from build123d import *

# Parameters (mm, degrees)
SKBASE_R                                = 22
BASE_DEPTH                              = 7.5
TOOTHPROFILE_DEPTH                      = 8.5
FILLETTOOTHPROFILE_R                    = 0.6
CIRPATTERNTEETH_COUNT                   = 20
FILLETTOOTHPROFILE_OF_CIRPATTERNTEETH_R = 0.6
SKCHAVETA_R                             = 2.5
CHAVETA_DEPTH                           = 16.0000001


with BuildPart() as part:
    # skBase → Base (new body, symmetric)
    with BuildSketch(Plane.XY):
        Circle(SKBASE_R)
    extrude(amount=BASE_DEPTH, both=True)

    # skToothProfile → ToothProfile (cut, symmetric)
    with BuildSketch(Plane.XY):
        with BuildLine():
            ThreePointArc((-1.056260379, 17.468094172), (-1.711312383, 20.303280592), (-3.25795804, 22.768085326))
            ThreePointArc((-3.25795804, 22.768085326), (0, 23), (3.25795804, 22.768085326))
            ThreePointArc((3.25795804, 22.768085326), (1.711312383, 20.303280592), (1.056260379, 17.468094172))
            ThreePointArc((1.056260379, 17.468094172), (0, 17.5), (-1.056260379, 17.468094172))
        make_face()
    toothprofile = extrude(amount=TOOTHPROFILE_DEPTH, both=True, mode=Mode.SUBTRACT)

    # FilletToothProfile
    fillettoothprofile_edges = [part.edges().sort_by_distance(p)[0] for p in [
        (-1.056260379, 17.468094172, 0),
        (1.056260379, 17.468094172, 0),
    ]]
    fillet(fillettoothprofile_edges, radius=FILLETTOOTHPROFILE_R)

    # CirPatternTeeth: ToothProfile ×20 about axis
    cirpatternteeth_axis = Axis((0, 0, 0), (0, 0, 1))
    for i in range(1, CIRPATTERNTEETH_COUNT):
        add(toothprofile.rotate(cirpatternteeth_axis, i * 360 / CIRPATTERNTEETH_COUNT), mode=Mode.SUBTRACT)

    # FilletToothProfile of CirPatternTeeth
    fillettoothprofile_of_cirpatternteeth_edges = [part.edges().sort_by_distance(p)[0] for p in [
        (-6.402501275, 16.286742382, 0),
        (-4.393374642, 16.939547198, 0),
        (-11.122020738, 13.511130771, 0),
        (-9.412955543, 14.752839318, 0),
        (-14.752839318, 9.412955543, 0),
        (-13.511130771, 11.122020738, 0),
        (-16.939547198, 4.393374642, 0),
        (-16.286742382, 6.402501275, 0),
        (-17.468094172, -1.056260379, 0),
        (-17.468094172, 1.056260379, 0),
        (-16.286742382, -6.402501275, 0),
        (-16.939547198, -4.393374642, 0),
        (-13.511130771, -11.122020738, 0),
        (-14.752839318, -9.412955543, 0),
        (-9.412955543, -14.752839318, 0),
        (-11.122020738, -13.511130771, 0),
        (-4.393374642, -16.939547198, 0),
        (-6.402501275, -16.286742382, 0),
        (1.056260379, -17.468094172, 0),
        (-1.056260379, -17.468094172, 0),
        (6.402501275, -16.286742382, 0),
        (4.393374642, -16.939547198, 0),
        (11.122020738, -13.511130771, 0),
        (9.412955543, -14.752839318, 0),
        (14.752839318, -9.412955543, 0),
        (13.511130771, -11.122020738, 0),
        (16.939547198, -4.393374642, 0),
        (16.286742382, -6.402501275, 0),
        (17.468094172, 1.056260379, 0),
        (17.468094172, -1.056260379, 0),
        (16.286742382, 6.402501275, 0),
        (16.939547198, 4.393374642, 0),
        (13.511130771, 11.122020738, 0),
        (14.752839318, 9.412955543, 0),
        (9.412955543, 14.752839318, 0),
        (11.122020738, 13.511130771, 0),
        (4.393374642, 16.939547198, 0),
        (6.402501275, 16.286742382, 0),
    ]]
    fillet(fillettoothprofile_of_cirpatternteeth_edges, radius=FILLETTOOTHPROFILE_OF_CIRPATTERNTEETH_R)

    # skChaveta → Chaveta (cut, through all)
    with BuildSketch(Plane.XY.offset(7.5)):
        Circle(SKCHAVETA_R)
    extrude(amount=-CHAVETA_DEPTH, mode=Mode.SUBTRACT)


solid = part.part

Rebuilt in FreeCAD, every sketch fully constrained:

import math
import FreeCAD as App
import Part
import Sketcher
Q = App.Units.Quantity


def edges_at(feature, points):
    """Names of the edges that pass closest to the given points."""
    edges = feature.Shape.Edges
    near = lambda p: min(range(len(edges)), key=lambda i: edges[i].distToShape(Part.Vertex(*p))[0])
    return sorted({f"Edge{near(p) + 1}" for p in points})

doc = App.newDocument("Part")
body = doc.addObject("PartDesign::Body", "Body")

sketch1 = body.newObject("Sketcher::SketchObject", "Sketch")
sketch1.AttachmentSupport = (doc.getObject("XY_Plane"), [""])
sketch1.MapMode = "FlatFace"
sketch1.addGeometry(Part.Circle(App.Vector(0, 0, 0), App.Vector(0, 0, 1), 22), False)
sketch1.addConstraint([
    Sketcher.Constraint("Coincident", 0, 3, -1, 1),
    Sketcher.Constraint("Diameter", 0, Q("44 mm")),
])
pad1 = body.newObject("PartDesign::Pad", "Pad")
pad1.Profile = sketch1
pad1.Length = 15
pad1.Midplane = True

sketch2 = body.newObject("Sketcher::SketchObject", "Sketch001")
sketch2.AttachmentSupport = (doc.getObject("XY_Plane"), [""])
sketch2.MapMode = "FlatFace"
sketch2.addGeometry([
    Part.ArcOfCircle(Part.Circle(App.Vector(-9.81053, 16.938741, 0), App.Vector(0, 0, 1), 8.77026), math.radians(3.460347), math.radians(41.65715)),
    Part.ArcOfCircle(Part.Circle(App.Vector(0, 0, 0), App.Vector(0, 0, 1), 17.5), math.radians(86.539653), math.radians(93.460347)),
    Part.ArcOfCircle(Part.Circle(App.Vector(9.81053, 16.938741, 0), App.Vector(0, 0, 1), 8.77026), math.radians(138.34285), math.radians(176.539653)),
    Part.ArcOfCircle(Part.Circle(App.Vector(0, 0, 0), App.Vector(0, 0, 1), 23), math.radians(81.856644), math.radians(98.143356)),
], False)
sketch2.addConstraint([
    Sketcher.Constraint("Coincident", 0, 1, 1, 2),
    Sketcher.Constraint("Coincident", 1, 1, 2, 2),
    Sketcher.Constraint("Coincident", 2, 1, 3, 1),
    Sketcher.Constraint("Coincident", 3, 2, 0, 2),
    Sketcher.Constraint("Coincident", 1, 3, -1, 1),
    Sketcher.Constraint("Coincident", 3, 3, -1, 1),
    Sketcher.Constraint("Equal", 0, 2),
    Sketcher.Constraint("Symmetric", 0, 3, 2, 3, -2),
    Sketcher.Constraint("Radius", 3, Q("23 mm")),
    Sketcher.Constraint("Radius", 1, Q("17.5 mm")),
    Sketcher.Constraint("Radius", 0, Q("8.77026 mm")),
    Sketcher.Constraint("DistanceX", 0, 3, -1, 1, Q("9.81053 mm")),
    Sketcher.Constraint("DistanceY", -1, 1, 0, 3, Q("16.938741 mm")),
])
pocket1 = body.newObject("PartDesign::Pocket", "Pocket")
pocket1.Profile = sketch2
pocket1.Length = 17
pocket1.Midplane = True
doc.recompute()

fillet = body.newObject("PartDesign::Fillet", "Fillet")
fillet.Base = (pocket1, edges_at(pocket1, [(-1.056, 17.468, 0), (1.056, 17.468, 0)]))
fillet.Radius = 0.6
doc.recompute()

polarpattern = body.newObject("PartDesign::PolarPattern", "PolarPattern")
polarpattern.Originals = [pocket1]
polarpattern.Axis = (doc.getObject("Z_Axis"), [""])
polarpattern.Angle = 360
polarpattern.Occurrences = 20
body.Tip = polarpattern
doc.recompute()

fillet2 = body.newObject("PartDesign::Fillet", "Fillet001")
fillet2.Base = (polarpattern, edges_at(polarpattern, [
    (-6.403, 16.287, 0),
    (-4.393, 16.94, 0),
    (-11.122, 13.511, 0),
    (-9.413, 14.753, 0),
    (-14.753, 9.413, 0),
    (-13.511, 11.122, 0),
    (-16.94, 4.393, 0),
    (-16.287, 6.403, 0),
    (-17.468, -1.056, 0),
    (-17.468, 1.056, 0),
    (-16.287, -6.403, 0),
    (-16.94, -4.393, 0),
    (-13.511, -11.122, 0),
    (-14.753, -9.413, 0),
    (-9.413, -14.753, 0),
    (-11.122, -13.511, 0),
    (-4.393, -16.94, 0),
    (-6.403, -16.287, 0),
    (1.056, -17.468, 0),
    (-1.056, -17.468, 0),
    (6.403, -16.287, 0),
    (4.393, -16.94, 0),
    (11.122, -13.511, 0),
    (9.413, -14.753, 0),
    (14.753, -9.413, 0),
    (13.511, -11.122, 0),
    (16.94, -4.393, 0),
    (16.287, -6.403, 0),
    (17.468, 1.056, 0),
    (17.468, -1.056, 0),
    (16.287, 6.403, 0),
    (16.94, 4.393, 0),
    (13.511, 11.122, 0),
    (14.753, 9.413, 0),
    (9.413, 14.753, 0),
    (11.122, 13.511, 0),
    (4.393, 16.94, 0),
    (6.403, 16.287, 0),
]))
fillet2.Radius = 0.6

sketch3 = body.newObject("Sketcher::SketchObject", "Sketch002")
sketch3.AttachmentSupport = (doc.getObject("XY_Plane"), [""])
sketch3.MapMode = "FlatFace"
sketch3.AttachmentOffset = App.Placement(App.Vector(0, 0, 7.5), App.Rotation())
sketch3.addGeometry(Part.Circle(App.Vector(0, 0, 0), App.Vector(0, 0, 1), 2.5), False)
sketch3.addConstraint([
    Sketcher.Constraint("Coincident", 0, 3, -1, 1),
    Sketcher.Constraint("Diameter", 0, Q("5 mm")),
])
pocket2 = body.newObject("PartDesign::Pocket", "Pocket001")
pocket2.Profile = sketch3
pocket2.Type = "ThroughAll"

doc.recompute()
